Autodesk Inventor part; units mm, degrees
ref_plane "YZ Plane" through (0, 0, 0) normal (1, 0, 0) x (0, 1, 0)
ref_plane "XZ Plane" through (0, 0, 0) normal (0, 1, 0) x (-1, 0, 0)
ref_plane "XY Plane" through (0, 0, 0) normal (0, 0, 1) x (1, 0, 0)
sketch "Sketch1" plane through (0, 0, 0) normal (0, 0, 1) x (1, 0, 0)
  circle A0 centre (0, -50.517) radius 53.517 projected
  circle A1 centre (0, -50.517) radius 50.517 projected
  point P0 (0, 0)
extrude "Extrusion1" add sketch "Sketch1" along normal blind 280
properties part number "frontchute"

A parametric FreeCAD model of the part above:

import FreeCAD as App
import Part
import Sketcher
Q = App.Units.Quantity

doc = App.newDocument("Part")
body = doc.addObject("PartDesign::Body", "Body")

# Sketch on XY plane
sketch1 = body.newObject("Sketcher::SketchObject", "Sketch")
sketch1.AttachmentSupport = (doc.getObject("XY_Plane"), [""])
sketch1.MapMode = "FlatFace"
sketch1.addGeometry(Part.Circle(App.Vector(0, -50.517, 0), App.Vector(0, 0, 1), 53.517), False)
sketch1.addGeometry(Part.Circle(App.Vector(0, -50.517, 0), App.Vector(0, 0, 1), 50.517), False)
sketch1.addConstraint(Sketcher.Constraint("Coincident", 1, 3, 0, 3))
sketch1.addConstraint(Sketcher.Constraint("PointOnObject", 0, 3, -2))
sketch1.addConstraint(Sketcher.Constraint("Diameter", 0, Q("107.034 mm")))
sketch1.addConstraint(Sketcher.Constraint("Diameter", 1, Q("101.034 mm")))
sketch1.addConstraint(Sketcher.Constraint("DistanceY", 0, 3, -1, 1, Q("50.517 mm")))
pad1 = body.newObject("PartDesign::Pad", "Pad")
pad1.Profile = sketch1
pad1.Length = 280

doc.recompute()
